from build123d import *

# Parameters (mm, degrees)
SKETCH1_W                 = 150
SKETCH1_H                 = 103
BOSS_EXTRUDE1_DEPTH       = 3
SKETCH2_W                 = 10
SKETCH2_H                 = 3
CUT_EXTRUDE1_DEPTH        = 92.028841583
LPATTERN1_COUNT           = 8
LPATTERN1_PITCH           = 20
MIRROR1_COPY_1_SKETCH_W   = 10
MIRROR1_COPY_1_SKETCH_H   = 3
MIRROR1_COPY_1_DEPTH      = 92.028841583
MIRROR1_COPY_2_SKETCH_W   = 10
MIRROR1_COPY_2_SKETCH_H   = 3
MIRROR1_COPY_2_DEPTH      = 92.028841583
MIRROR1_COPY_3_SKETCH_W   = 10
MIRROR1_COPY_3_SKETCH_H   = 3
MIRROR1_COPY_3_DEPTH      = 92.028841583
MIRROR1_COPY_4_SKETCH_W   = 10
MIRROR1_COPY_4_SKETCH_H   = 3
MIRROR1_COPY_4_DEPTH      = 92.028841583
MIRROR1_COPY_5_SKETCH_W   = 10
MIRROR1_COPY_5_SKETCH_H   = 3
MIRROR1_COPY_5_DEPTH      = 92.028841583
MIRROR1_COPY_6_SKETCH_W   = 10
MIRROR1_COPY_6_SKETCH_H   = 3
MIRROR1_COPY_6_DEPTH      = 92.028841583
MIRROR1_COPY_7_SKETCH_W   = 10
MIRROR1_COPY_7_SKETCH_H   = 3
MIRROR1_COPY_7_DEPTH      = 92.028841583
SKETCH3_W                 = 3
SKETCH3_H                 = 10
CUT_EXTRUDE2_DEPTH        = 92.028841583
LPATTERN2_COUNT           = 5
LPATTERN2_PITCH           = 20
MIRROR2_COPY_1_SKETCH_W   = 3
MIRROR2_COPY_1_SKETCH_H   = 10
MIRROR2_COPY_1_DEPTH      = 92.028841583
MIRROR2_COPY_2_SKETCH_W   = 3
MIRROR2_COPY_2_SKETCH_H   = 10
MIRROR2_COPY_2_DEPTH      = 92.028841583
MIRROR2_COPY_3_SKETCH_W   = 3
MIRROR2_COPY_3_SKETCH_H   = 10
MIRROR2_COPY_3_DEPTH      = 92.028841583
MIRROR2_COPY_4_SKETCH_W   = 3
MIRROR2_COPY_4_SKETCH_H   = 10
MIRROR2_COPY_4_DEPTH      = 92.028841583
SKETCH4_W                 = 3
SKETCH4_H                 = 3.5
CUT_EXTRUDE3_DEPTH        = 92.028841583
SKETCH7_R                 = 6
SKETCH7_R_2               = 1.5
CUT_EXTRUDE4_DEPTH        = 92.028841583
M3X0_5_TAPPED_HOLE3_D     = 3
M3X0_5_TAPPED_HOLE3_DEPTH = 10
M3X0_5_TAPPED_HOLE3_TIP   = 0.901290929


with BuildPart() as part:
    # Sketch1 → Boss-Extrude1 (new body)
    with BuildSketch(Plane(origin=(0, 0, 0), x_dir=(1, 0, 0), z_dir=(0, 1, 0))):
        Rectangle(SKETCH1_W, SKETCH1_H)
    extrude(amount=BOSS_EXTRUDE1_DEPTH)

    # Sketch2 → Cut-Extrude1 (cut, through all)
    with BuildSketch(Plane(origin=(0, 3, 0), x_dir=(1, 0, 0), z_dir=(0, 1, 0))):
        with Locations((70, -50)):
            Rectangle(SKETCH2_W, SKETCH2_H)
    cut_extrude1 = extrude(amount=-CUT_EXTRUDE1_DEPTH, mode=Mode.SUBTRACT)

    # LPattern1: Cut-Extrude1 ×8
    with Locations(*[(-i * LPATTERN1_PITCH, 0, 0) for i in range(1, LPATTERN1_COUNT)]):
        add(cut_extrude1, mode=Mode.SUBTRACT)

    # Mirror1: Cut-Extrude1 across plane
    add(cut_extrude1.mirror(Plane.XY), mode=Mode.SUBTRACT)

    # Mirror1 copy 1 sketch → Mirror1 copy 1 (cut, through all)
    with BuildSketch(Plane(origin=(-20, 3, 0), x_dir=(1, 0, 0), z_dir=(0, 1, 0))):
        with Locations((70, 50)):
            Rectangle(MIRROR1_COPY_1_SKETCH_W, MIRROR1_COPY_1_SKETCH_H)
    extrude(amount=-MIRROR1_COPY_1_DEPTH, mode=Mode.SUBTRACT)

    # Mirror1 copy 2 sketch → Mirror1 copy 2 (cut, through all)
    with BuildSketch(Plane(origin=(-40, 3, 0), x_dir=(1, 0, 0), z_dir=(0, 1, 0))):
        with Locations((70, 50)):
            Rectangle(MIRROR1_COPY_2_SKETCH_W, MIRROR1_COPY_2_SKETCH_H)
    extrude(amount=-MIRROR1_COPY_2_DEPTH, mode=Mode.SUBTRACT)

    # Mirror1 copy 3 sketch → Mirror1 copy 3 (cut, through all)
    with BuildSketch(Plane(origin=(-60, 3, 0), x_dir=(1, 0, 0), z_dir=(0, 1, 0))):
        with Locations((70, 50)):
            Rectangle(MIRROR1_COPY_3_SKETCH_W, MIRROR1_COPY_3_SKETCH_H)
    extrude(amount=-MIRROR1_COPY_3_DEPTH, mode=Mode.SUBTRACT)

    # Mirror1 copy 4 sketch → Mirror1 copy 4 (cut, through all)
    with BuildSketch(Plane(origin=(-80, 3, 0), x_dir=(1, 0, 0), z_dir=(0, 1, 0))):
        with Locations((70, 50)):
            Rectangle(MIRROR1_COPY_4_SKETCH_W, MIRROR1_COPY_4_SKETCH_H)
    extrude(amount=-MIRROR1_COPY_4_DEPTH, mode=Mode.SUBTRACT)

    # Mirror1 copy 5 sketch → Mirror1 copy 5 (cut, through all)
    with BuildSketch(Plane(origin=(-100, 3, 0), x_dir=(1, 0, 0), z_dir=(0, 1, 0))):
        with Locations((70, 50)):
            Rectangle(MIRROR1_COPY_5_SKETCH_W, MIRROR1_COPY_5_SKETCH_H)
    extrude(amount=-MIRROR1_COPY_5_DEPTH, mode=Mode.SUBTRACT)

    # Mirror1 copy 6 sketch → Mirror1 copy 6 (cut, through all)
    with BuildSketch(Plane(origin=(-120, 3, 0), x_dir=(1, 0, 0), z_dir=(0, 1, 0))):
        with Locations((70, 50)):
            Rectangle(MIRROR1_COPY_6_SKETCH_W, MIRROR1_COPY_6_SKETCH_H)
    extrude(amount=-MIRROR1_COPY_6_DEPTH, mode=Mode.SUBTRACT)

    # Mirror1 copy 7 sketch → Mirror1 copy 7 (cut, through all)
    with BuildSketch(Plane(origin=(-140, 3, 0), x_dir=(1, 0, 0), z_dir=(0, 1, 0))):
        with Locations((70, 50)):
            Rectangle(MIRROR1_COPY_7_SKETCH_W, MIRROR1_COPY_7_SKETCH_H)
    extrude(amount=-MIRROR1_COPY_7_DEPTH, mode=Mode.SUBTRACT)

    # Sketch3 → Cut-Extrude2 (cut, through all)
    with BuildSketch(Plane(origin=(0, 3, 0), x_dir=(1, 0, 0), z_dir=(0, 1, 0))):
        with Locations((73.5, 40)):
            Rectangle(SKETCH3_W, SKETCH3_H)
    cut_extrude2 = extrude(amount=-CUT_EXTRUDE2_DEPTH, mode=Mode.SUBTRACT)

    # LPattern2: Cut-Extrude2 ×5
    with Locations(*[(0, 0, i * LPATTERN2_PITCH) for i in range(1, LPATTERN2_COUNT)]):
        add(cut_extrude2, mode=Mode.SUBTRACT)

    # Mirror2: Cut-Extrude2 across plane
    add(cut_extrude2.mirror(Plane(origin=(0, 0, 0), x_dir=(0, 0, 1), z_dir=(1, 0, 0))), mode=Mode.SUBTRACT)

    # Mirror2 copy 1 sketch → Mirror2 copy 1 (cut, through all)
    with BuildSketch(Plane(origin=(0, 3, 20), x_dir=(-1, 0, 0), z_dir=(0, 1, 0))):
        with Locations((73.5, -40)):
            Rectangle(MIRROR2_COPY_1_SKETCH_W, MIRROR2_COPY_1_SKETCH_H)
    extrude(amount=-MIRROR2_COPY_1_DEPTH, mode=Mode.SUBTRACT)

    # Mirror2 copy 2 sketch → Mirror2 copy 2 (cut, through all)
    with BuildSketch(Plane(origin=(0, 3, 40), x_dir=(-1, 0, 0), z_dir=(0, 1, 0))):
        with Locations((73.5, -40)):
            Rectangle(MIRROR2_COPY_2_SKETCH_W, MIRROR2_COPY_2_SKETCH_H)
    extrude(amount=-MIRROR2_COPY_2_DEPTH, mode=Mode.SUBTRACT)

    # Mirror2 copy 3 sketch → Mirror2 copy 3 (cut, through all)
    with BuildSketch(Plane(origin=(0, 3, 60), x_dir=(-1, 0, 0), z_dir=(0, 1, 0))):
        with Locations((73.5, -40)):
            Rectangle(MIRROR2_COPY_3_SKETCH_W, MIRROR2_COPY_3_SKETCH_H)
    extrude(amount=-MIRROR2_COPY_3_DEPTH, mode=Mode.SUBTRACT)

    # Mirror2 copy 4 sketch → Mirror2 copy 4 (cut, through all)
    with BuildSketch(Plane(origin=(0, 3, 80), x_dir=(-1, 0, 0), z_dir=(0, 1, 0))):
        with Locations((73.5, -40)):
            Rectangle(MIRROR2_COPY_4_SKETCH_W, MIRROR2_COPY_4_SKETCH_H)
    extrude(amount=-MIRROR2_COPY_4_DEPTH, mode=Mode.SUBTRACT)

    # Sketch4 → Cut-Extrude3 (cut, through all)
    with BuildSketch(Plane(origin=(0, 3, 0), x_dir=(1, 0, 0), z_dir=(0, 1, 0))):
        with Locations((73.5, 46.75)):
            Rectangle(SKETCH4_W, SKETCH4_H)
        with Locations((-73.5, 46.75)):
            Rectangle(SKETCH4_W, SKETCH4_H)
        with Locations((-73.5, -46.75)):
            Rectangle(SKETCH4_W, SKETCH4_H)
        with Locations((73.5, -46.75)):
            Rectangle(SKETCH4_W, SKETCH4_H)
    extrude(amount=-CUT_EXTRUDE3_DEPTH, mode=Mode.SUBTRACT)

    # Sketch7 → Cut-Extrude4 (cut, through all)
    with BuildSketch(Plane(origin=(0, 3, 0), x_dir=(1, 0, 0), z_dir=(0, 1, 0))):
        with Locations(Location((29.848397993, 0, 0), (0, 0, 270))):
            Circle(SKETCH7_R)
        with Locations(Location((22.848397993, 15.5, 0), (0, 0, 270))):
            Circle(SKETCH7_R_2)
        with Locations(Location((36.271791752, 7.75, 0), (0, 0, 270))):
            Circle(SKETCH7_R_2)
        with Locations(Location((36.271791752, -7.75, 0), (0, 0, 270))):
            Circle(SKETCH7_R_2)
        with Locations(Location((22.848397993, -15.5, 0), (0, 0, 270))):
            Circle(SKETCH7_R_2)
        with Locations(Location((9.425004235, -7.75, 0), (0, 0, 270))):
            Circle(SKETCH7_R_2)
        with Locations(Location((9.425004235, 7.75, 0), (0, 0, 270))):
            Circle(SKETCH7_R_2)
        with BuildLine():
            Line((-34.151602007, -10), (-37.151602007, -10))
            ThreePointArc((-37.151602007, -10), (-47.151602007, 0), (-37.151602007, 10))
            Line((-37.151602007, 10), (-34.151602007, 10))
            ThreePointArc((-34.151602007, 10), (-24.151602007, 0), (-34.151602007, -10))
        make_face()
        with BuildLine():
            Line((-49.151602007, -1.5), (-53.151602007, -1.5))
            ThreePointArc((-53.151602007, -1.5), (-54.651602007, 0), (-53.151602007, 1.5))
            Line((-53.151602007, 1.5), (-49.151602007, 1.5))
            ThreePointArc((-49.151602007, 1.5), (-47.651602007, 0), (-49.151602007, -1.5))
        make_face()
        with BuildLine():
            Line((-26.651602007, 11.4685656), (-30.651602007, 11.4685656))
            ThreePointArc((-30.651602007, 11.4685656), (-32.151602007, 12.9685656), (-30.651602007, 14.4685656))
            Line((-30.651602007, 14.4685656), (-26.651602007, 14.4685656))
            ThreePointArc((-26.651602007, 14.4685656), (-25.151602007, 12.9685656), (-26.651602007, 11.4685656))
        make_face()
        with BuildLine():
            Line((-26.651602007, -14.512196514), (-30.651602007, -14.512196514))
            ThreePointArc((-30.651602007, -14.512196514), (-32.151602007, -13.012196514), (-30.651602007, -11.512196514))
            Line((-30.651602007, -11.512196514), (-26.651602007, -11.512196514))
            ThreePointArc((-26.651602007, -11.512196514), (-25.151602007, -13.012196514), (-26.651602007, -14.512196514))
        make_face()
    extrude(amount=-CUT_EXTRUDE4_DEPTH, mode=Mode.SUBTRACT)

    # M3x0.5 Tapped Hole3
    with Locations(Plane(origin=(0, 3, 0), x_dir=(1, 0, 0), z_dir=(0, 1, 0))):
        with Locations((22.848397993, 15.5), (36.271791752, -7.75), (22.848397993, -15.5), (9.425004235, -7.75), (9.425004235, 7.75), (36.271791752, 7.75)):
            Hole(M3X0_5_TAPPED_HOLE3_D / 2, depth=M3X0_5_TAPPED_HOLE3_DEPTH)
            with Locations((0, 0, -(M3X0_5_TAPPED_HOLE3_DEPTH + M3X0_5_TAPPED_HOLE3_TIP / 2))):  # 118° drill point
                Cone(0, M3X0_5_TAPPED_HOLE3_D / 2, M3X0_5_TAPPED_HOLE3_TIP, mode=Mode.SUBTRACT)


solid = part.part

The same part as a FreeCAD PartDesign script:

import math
import FreeCAD as App
import Part
import Sketcher
from FreeCAD import Vector
Q = App.Units.Quantity


def add_polygon(sketch, points):
    """Adds a closed chain of lines whose ends are joined by coincident constraints."""
    first, n = sketch.GeometryCount, len(points)
    for a, b in zip(points, points[1:] + points[:1]):
        sketch.addGeometry(Part.LineSegment(App.Vector(*a, 0), App.Vector(*b, 0)), False)
    for i in range(n):
        sketch.addConstraint(Sketcher.Constraint("Coincident", first + i, 2, first + (i + 1) % n, 1))

doc = App.newDocument("Part")
body = doc.addObject("PartDesign::Body", "Body")

# Sketch on XZ plane
sketch1 = body.newObject("Sketcher::SketchObject", "Sketch")
sketch1.AttachmentSupport = (doc.getObject("XZ_Plane"), [""])
sketch1.MapMode = "FlatFace"
add_polygon(sketch1, [(-75, -51.5), (-75, 51.5), (75, 51.5), (75, -51.5)])  # lines 0-3
sketch1.addConstraint(Sketcher.Constraint("Vertical", 0))
sketch1.addConstraint(Sketcher.Constraint("Horizontal", 1))
sketch1.addConstraint(Sketcher.Constraint("Vertical", 2))
sketch1.addConstraint(Sketcher.Constraint("Horizontal", 3))
sketch1.addConstraint(Sketcher.Constraint("Symmetric", 0, 2, 2, 2, -1, 1))
sketch1.addConstraint(Sketcher.Constraint("DistanceX", 1, 1, 1, 2, Q("150 mm")))
sketch1.addConstraint(Sketcher.Constraint("DistanceY", 0, 1, 0, 2, Q("103 mm")))
pad1 = body.newObject("PartDesign::Pad", "Pad")
pad1.Profile = sketch1
pad1.Length = 3
pad1.Reversed = True

# Sketch on XZ plane
sketch2 = body.newObject("Sketcher::SketchObject", "Sketch001")
sketch2.AttachmentSupport = (doc.getObject("XZ_Plane"), [""])
sketch2.MapMode = "FlatFace"
sketch2.AttachmentOffset = App.Placement(Vector(0, 0, -3), App.Rotation())
add_polygon(sketch2, [(65, 48.5), (65, 51.5), (75, 51.5), (75, 48.5)])  # lines 0-3
sketch2.addConstraint(Sketcher.Constraint("Vertical", 0))
sketch2.addConstraint(Sketcher.Constraint("Horizontal", 1))
sketch2.addConstraint(Sketcher.Constraint("Vertical", 2))
sketch2.addConstraint(Sketcher.Constraint("Horizontal", 3))
sketch2.addConstraint(Sketcher.Constraint("DistanceX", 1, 1, 1, 2, Q("10 mm")))
sketch2.addConstraint(Sketcher.Constraint("DistanceY", 0, 1, 0, 2, Q("3 mm")))
sketch2.addConstraint(Sketcher.Constraint("DistanceX", -1, 1, 0, 2, Q("65 mm")))
sketch2.addConstraint(Sketcher.Constraint("DistanceY", -1, 1, 0, 2, Q("51.5 mm")))
pocket1 = body.newObject("PartDesign::Pocket", "Pocket")
pocket1.Profile = sketch2
pocket1.Type = "ThroughAll"
pocket1.Reversed = True
doc.recompute()

linearpattern = body.newObject("PartDesign::LinearPattern", "LinearPattern")
linearpattern.Originals = [pocket1]
linearpattern.Direction = (doc.getObject("X_Axis"), [""])
linearpattern.Mode = "offset"
linearpattern.Offset = 20
linearpattern.Occurrences = 8
linearpattern.Reversed = True
body.Tip = linearpattern
doc.recompute()

mirrored = body.newObject("PartDesign::Mirrored", "Mirrored")
mirrored.Originals = [pocket1]
mirrored.MirrorPlane = (doc.getObject("XY_Plane"), [""])
body.Tip = mirrored

# Sketch on XZ plane
sketch3 = body.newObject("Sketcher::SketchObject", "Sketch002")
sketch3.AttachmentSupport = (doc.getObject("XZ_Plane"), [""])
sketch3.MapMode = "FlatFace"
sketch3.AttachmentOffset = App.Placement(Vector(0, 0, -3), App.Rotation())
add_polygon(sketch3, [(45, -51.5), (45, -48.5), (55, -48.5), (55, -51.5)])  # lines 0-3
sketch3.addConstraint(Sketcher.Constraint("Vertical", 0))
sketch3.addConstraint(Sketcher.Constraint("Horizontal", 1))
sketch3.addConstraint(Sketcher.Constraint("Vertical", 2))
sketch3.addConstraint(Sketcher.Constraint("Horizontal", 3))
sketch3.addConstraint(Sketcher.Constraint("DistanceX", 1, 1, 1, 2, Q("10 mm")))
sketch3.addConstraint(Sketcher.Constraint("DistanceY", 0, 1, 0, 2, Q("3 mm")))
sketch3.addConstraint(Sketcher.Constraint("DistanceX", -1, 1, 0, 2, Q("45 mm")))
sketch3.addConstraint(Sketcher.Constraint("DistanceY", 0, 2, -1, 1, Q("48.5 mm")))
pocket2 = body.newObject("PartDesign::Pocket", "Pocket001")
pocket2.Profile = sketch3
pocket2.Type = "ThroughAll"
pocket2.Reversed = True

# Sketch on XZ plane
sketch4 = body.newObject("Sketcher::SketchObject", "Sketch003")
sketch4.AttachmentSupport = (doc.getObject("XZ_Plane"), [""])
sketch4.MapMode = "FlatFace"
sketch4.AttachmentOffset = App.Placement(Vector(0, 0, -3), App.Rotation())
add_polygon(sketch4, [(25, -51.5), (25, -48.5), (35, -48.5), (35, -51.5)])  # lines 0-3
sketch4.addConstraint(Sketcher.Constraint("Vertical", 0))
sketch4.addConstraint(Sketcher.Constraint("Horizontal", 1))
sketch4.addConstraint(Sketcher.Constraint("Vertical", 2))
sketch4.addConstraint(Sketcher.Constraint("Horizontal", 3))
sketch4.addConstraint(Sketcher.Constraint("DistanceX", 1, 1, 1, 2, Q("10 mm")))
sketch4.addConstraint(Sketcher.Constraint("DistanceY", 0, 1, 0, 2, Q("3 mm")))
sketch4.addConstraint(Sketcher.Constraint("DistanceX", -1, 1, 0, 2, Q("25 mm")))
sketch4.addConstraint(Sketcher.Constraint("DistanceY", 0, 2, -1, 1, Q("48.5 mm")))
pocket3 = body.newObject("PartDesign::Pocket", "Pocket002")
pocket3.Profile = sketch4
pocket3.Type = "ThroughAll"
pocket3.Reversed = True

# Sketch on XZ plane
sketch5 = body.newObject("Sketcher::SketchObject", "Sketch004")
sketch5.AttachmentSupport = (doc.getObject("XZ_Plane"), [""])
sketch5.MapMode = "FlatFace"
sketch5.AttachmentOffset = App.Placement(Vector(0, 0, -3), App.Rotation())
add_polygon(sketch5, [(5, -51.5), (5, -48.5), (15, -48.5), (15, -51.5)])  # lines 0-3
sketch5.addConstraint(Sketcher.Constraint("Vertical", 0))
sketch5.addConstraint(Sketcher.Constraint("Horizontal", 1))
sketch5.addConstraint(Sketcher.Constraint("Vertical", 2))
sketch5.addConstraint(Sketcher.Constraint("Horizontal", 3))
sketch5.addConstraint(Sketcher.Constraint("DistanceX", 1, 1, 1, 2, Q("10 mm")))
sketch5.addConstraint(Sketcher.Constraint("DistanceY", 0, 1, 0, 2, Q("3 mm")))
sketch5.addConstraint(Sketcher.Constraint("DistanceX", -1, 1, 0, 2, Q("5 mm")))
sketch5.addConstraint(Sketcher.Constraint("DistanceY", 0, 2, -1, 1, Q("48.5 mm")))
pocket4 = body.newObject("PartDesign::Pocket", "Pocket003")
pocket4.Profile = sketch5
pocket4.Type = "ThroughAll"
pocket4.Reversed = True

# Sketch on XZ plane
sketch6 = body.newObject("Sketcher::SketchObject", "Sketch005")
sketch6.AttachmentSupport = (doc.getObject("XZ_Plane"), [""])
sketch6.MapMode = "FlatFace"
sketch6.AttachmentOffset = App.Placement(Vector(0, 0, -3), App.Rotation())
add_polygon(sketch6, [(-15, -51.5), (-15, -48.5), (-5, -48.5), (-5, -51.5)])  # lines 0-3
sketch6.addConstraint(Sketcher.Constraint("Vertical", 0))
sketch6.addConstraint(Sketcher.Constraint("Horizontal", 1))
sketch6.addConstraint(Sketcher.Constraint("Vertical", 2))
sketch6.addConstraint(Sketcher.Constraint("Horizontal", 3))
sketch6.addConstraint(Sketcher.Constraint("DistanceX", 1, 1, 1, 2, Q("10 mm")))
sketch6.addConstraint(Sketcher.Constraint("DistanceY", 0, 1, 0, 2, Q("3 mm")))
sketch6.addConstraint(Sketcher.Constraint("DistanceX", 0, 2, -1, 1, Q("15 mm")))
sketch6.addConstraint(Sketcher.Constraint("DistanceY", 0, 2, -1, 1, Q("48.5 mm")))
pocket5 = body.newObject("PartDesign::Pocket", "Pocket004")
pocket5.Profile = sketch6
pocket5.Type = "ThroughAll"
pocket5.Reversed = True

# Sketch on XZ plane
sketch7 = body.newObject("Sketcher::SketchObject", "Sketch006")
sketch7.AttachmentSupport = (doc.getObject("XZ_Plane"), [""])
sketch7.MapMode = "FlatFace"
sketch7.AttachmentOffset = App.Placement(Vector(0, 0, -3), App.Rotation())
add_polygon(sketch7, [(-35, -51.5), (-35, -48.5), (-25, -48.5), (-25, -51.5)])  # lines 0-3
sketch7.addConstraint(Sketcher.Constraint("Vertical", 0))
sketch7.addConstraint(Sketcher.Constraint("Horizontal", 1))
sketch7.addConstraint(Sketcher.Constraint("Vertical", 2))
sketch7.addConstraint(Sketcher.Constraint("Horizontal", 3))
sketch7.addConstraint(Sketcher.Constraint("DistanceX", 1, 1, 1, 2, Q("10 mm")))
sketch7.addConstraint(Sketcher.Constraint("DistanceY", 0, 1, 0, 2, Q("3 mm")))
sketch7.addConstraint(Sketcher.Constraint("DistanceX", 0, 2, -1, 1, Q("35 mm")))
sketch7.addConstraint(Sketcher.Constraint("DistanceY", 0, 2, -1, 1, Q("48.5 mm")))
pocket6 = body.newObject("PartDesign::Pocket", "Pocket005")
pocket6.Profile = sketch7
pocket6.Type = "ThroughAll"
pocket6.Reversed = True

# Sketch on XZ plane
sketch8 = body.newObject("Sketcher::SketchObject", "Sketch007")
sketch8.AttachmentSupport = (doc.getObject("XZ_Plane"), [""])
sketch8.MapMode = "FlatFace"
sketch8.AttachmentOffset = App.Placement(Vector(0, 0, -3), App.Rotation())
add_polygon(sketch8, [(-55, -51.5), (-55, -48.5), (-45, -48.5), (-45, -51.5)])  # lines 0-3
sketch8.addConstraint(Sketcher.Constraint("Vertical", 0))
sketch8.addConstraint(Sketcher.Constraint("Horizontal", 1))
sketch8.addConstraint(Sketcher.Constraint("Vertical", 2))
sketch8.addConstraint(Sketcher.Constraint("Horizontal", 3))
sketch8.addConstraint(Sketcher.Constraint("DistanceX", 1, 1, 1, 2, Q("10 mm")))
sketch8.addConstraint(Sketcher.Constraint("DistanceY", 0, 1, 0, 2, Q("3 mm")))
sketch8.addConstraint(Sketcher.Constraint("DistanceX", 0, 2, -1, 1, Q("55 mm")))
sketch8.addConstraint(Sketcher.Constraint("DistanceY", 0, 2, -1, 1, Q("48.5 mm")))
pocket7 = body.newObject("PartDesign::Pocket", "Pocket006")
pocket7.Profile = sketch8
pocket7.Type = "ThroughAll"
pocket7.Reversed = True

# Sketch on XZ plane
sketch9 = body.newObject("Sketcher::SketchObject", "Sketch008")
sketch9.AttachmentSupport = (doc.getObject("XZ_Plane"), [""])
sketch9.MapMode = "FlatFace"
sketch9.AttachmentOffset = App.Placement(Vector(0, 0, -3), App.Rotation())
add_polygon(sketch9, [(-75, -51.5), (-75, -48.5), (-65, -48.5), (-65, -51.5)])  # lines 0-3
sketch9.addConstraint(Sketcher.Constraint("Vertical", 0))
sketch9.addConstraint(Sketcher.Constraint("Horizontal", 1))
sketch9.addConstraint(Sketcher.Constraint("Vertical", 2))
sketch9.addConstraint(Sketcher.Constraint("Horizontal", 3))
sketch9.addConstraint(Sketcher.Constraint("DistanceX", 1, 1, 1, 2, Q("10 mm")))
sketch9.addConstraint(Sketcher.Constraint("DistanceY", 0, 1, 0, 2, Q("3 mm")))
sketch9.addConstraint(Sketcher.Constraint("DistanceX", 0, 2, -1, 1, Q("75 mm")))
sketch9.addConstraint(Sketcher.Constraint("DistanceY", 0, 2, -1, 1, Q("48.5 mm")))
pocket8 = body.newObject("PartDesign::Pocket", "Pocket007")
pocket8.Profile = sketch9
pocket8.Type = "ThroughAll"
pocket8.Reversed = True

# Sketch on XZ plane
sketch10 = body.newObject("Sketcher::SketchObject", "Sketch009")
sketch10.AttachmentSupport = (doc.getObject("XZ_Plane"), [""])
sketch10.MapMode = "FlatFace"
sketch10.AttachmentOffset = App.Placement(Vector(0, 0, -3), App.Rotation())
add_polygon(sketch10, [(72, -45), (72, -35), (75, -35), (75, -45)])  # lines 0-3
sketch10.addConstraint(Sketcher.Constraint("Vertical", 0))
sketch10.addConstraint(Sketcher.Constraint("Horizontal", 1))
sketch10.addConstraint(Sketcher.Constraint("Vertical", 2))
sketch10.addConstraint(Sketcher.Constraint("Horizontal", 3))
sketch10.addConstraint(Sketcher.Constraint("DistanceX", 1, 1, 1, 2, Q("3 mm")))
sketch10.addConstraint(Sketcher.Constraint("DistanceY", 0, 1, 0, 2, Q("10 mm")))
sketch10.addConstraint(Sketcher.Constraint("DistanceX", -1, 1, 0, 2, Q("72 mm")))
sketch10.addConstraint(Sketcher.Constraint("DistanceY", 0, 2, -1, 1, Q("35 mm")))
pocket9 = body.newObject("PartDesign::Pocket", "Pocket008")
pocket9.Profile = sketch10
pocket9.Type = "ThroughAll"
pocket9.Reversed = True
doc.recompute()

linearpattern2 = body.newObject("PartDesign::LinearPattern", "LinearPattern001")
linearpattern2.Originals = [pocket9]
linearpattern2.Direction = (doc.getObject("Z_Axis"), [""])
linearpattern2.Mode = "offset"
linearpattern2.Offset = 20
linearpattern2.Occurrences = 5
body.Tip = linearpattern2
doc.recompute()

mirrored2 = body.newObject("PartDesign::Mirrored", "Mirrored001")
mirrored2.Originals = [pocket9]
mirrored2.MirrorPlane = (doc.getObject("YZ_Plane"), [""])
body.Tip = mirrored2

# Sketch on XZ plane
sketch11 = body.newObject("Sketcher::SketchObject", "Sketch010")
sketch11.AttachmentSupport = (doc.getObject("XZ_Plane"), [""])
sketch11.MapMode = "FlatFace"
sketch11.AttachmentOffset = App.Placement(Vector(0, 0, -3), App.Rotation())
add_polygon(sketch11, [(-72, -15), (-72, -25), (-75, -25), (-75, -15)])  # lines 0-3
sketch11.addConstraint(Sketcher.Constraint("Vertical", 0))
sketch11.addConstraint(Sketcher.Constraint("Horizontal", 1))
sketch11.addConstraint(Sketcher.Constraint("Vertical", 2))
sketch11.addConstraint(Sketcher.Constraint("Horizontal", 3))
sketch11.addConstraint(Sketcher.Constraint("DistanceX", 1, 2, 1, 1, Q("3 mm")))
sketch11.addConstraint(Sketcher.Constraint("DistanceY", 0, 2, 0, 1, Q("10 mm")))
sketch11.addConstraint(Sketcher.Constraint("DistanceX", 0, 2, -1, 1, Q("72 mm")))
sketch11.addConstraint(Sketcher.Constraint("DistanceY", 0, 2, -1, 1, Q("25 mm")))
pocket10 = body.newObject("PartDesign::Pocket", "Pocket009")
pocket10.Profile = sketch11
pocket10.Type = "ThroughAll"
pocket10.Reversed = True

# Sketch on XZ plane
sketch12 = body.newObject("Sketcher::SketchObject", "Sketch011")
sketch12.AttachmentSupport = (doc.getObject("XZ_Plane"), [""])
sketch12.MapMode = "FlatFace"
sketch12.AttachmentOffset = App.Placement(Vector(0, 0, -3), App.Rotation())
add_polygon(sketch12, [(-72, 5), (-72, -5), (-75, -5), (-75, 5)])  # lines 0-3
sketch12.addConstraint(Sketcher.Constraint("Vertical", 0))
sketch12.addConstraint(Sketcher.Constraint("Horizontal", 1))
sketch12.addConstraint(Sketcher.Constraint("Vertical", 2))
sketch12.addConstraint(Sketcher.Constraint("Horizontal", 3))
sketch12.addConstraint(Sketcher.Constraint("DistanceX", 1, 2, 1, 1, Q("3 mm")))
sketch12.addConstraint(Sketcher.Constraint("DistanceY", 0, 2, 0, 1, Q("10 mm")))
sketch12.addConstraint(Sketcher.Constraint("DistanceX", 0, 2, -1, 1, Q("72 mm")))
sketch12.addConstraint(Sketcher.Constraint("DistanceY", 0, 2, -1, 1, Q("5 mm")))
pocket11 = body.newObject("PartDesign::Pocket", "Pocket010")
pocket11.Profile = sketch12
pocket11.Type = "ThroughAll"
pocket11.Reversed = True

# Sketch on XZ plane
sketch13 = body.newObject("Sketcher::SketchObject", "Sketch012")
sketch13.AttachmentSupport = (doc.getObject("XZ_Plane"), [""])
sketch13.MapMode = "FlatFace"
sketch13.AttachmentOffset = App.Placement(Vector(0, 0, -3), App.Rotation())
add_polygon(sketch13, [(-72, 25), (-72, 15), (-75, 15), (-75, 25)])  # lines 0-3
sketch13.addConstraint(Sketcher.Constraint("Vertical", 0))
sketch13.addConstraint(Sketcher.Constraint("Horizontal", 1))
sketch13.addConstraint(Sketcher.Constraint("Vertical", 2))
sketch13.addConstraint(Sketcher.Constraint("Horizontal", 3))
sketch13.addConstraint(Sketcher.Constraint("DistanceX", 1, 2, 1, 1, Q("3 mm")))
sketch13.addConstraint(Sketcher.Constraint("DistanceY", 0, 2, 0, 1, Q("10 mm")))
sketch13.addConstraint(Sketcher.Constraint("DistanceX", 0, 2, -1, 1, Q("72 mm")))
sketch13.addConstraint(Sketcher.Constraint("DistanceY", -1, 1, 0, 2, Q("15 mm")))
pocket12 = body.newObject("PartDesign::Pocket", "Pocket011")
pocket12.Profile = sketch13
pocket12.Type = "ThroughAll"
pocket12.Reversed = True

# Sketch on XZ plane
sketch14 = body.newObject("Sketcher::SketchObject", "Sketch013")
sketch14.AttachmentSupport = (doc.getObject("XZ_Plane"), [""])
sketch14.MapMode = "FlatFace"
sketch14.AttachmentOffset = App.Placement(Vector(0, 0, -3), App.Rotation())
add_polygon(sketch14, [(-72, 45), (-72, 35), (-75, 35), (-75, 45)])  # lines 0-3
sketch14.addConstraint(Sketcher.Constraint("Vertical", 0))
sketch14.addConstraint(Sketcher.Constraint("Horizontal", 1))
sketch14.addConstraint(Sketcher.Constraint("Vertical", 2))
sketch14.addConstraint(Sketcher.Constraint("Horizontal", 3))
sketch14.addConstraint(Sketcher.Constraint("DistanceX", 1, 2, 1, 1, Q("3 mm")))
sketch14.addConstraint(Sketcher.Constraint("DistanceY", 0, 2, 0, 1, Q("10 mm")))
sketch14.addConstraint(Sketcher.Constraint("DistanceX", 0, 2, -1, 1, Q("72 mm")))
sketch14.addConstraint(Sketcher.Constraint("DistanceY", -1, 1, 0, 2, Q("35 mm")))
pocket13 = body.newObject("PartDesign::Pocket", "Pocket012")
pocket13.Profile = sketch14
pocket13.Type = "ThroughAll"
pocket13.Reversed = True

# Sketch on XZ plane
sketch15 = body.newObject("Sketcher::SketchObject", "Sketch014")
sketch15.AttachmentSupport = (doc.getObject("XZ_Plane"), [""])
sketch15.MapMode = "FlatFace"
sketch15.AttachmentOffset = App.Placement(Vector(0, 0, -3), App.Rotation())
add_polygon(sketch15, [(72, -48.5), (72, -45), (75, -45), (75, -48.5)])  # lines 0-3
add_polygon(sketch15, [(-75, -48.5), (-75, -45), (-72, -45), (-72, -48.5)])  # lines 4-7
add_polygon(sketch15, [(-75, 45), (-75, 48.5), (-72, 48.5), (-72, 45)])  # lines 8-11
add_polygon(sketch15, [(72, 45), (72, 48.5), (75, 48.5), (75, 45)])  # lines 12-15
sketch15.addConstraint(Sketcher.Constraint("Vertical", 0))
sketch15.addConstraint(Sketcher.Constraint("Horizontal", 1))
sketch15.addConstraint(Sketcher.Constraint("Vertical", 2))
sketch15.addConstraint(Sketcher.Constraint("Horizontal", 3))
sketch15.addConstraint(Sketcher.Constraint("Vertical", 4))
sketch15.addConstraint(Sketcher.Constraint("Horizontal", 5))
sketch15.addConstraint(Sketcher.Constraint("Vertical", 6))
sketch15.addConstraint(Sketcher.Constraint("Horizontal", 7))
sketch15.addConstraint(Sketcher.Constraint("Vertical", 8))
sketch15.addConstraint(Sketcher.Constraint("Horizontal", 9))
sketch15.addConstraint(Sketcher.Constraint("Vertical", 10))
sketch15.addConstraint(Sketcher.Constraint("Horizontal", 11))
sketch15.addConstraint(Sketcher.Constraint("Vertical", 12))
sketch15.addConstraint(Sketcher.Constraint("Horizontal", 13))
sketch15.addConstraint(Sketcher.Constraint("Vertical", 14))
sketch15.addConstraint(Sketcher.Constraint("Horizontal", 15))
sketch15.addConstraint(Sketcher.Constraint("Symmetric", 2, 2, 8, 2, -1, 1))
sketch15.addConstraint(Sketcher.Constraint("Symmetric", 0, 2, 10, 2, -1, 1))
sketch15.addConstraint(Sketcher.Constraint("Symmetric", 6, 2, 12, 2, -1, 1))
sketch15.addConstraint(Sketcher.Constraint("Symmetric", 4, 2, 14, 2, -1, 1))
sketch15.addConstraint(Sketcher.Constraint("Symmetric", 1, 2, 4, 2, -2))
sketch15.addConstraint(Sketcher.Constraint("Symmetric", 3, 2, 6, 2, -2))
sketch15.addConstraint(Sketcher.Constraint("DistanceX", 1, 1, 1, 2, Q("3 mm")))
sketch15.addConstraint(Sketcher.Constraint("DistanceY", 0, 1, 0, 2, Q("3.5 mm")))
sketch15.addConstraint(Sketcher.Constraint("DistanceX", -1, 1, 0, 2, Q("72 mm")))
sketch15.addConstraint(Sketcher.Constraint("DistanceY", 0, 2, -1, 1, Q("45 mm")))
pocket14 = body.newObject("PartDesign::Pocket", "Pocket013")
pocket14.Profile = sketch15
pocket14.Type = "ThroughAll"
pocket14.Reversed = True

# Sketch on XZ plane
sketch16 = body.newObject("Sketcher::SketchObject", "Sketch015")
sketch16.AttachmentSupport = (doc.getObject("XZ_Plane"), [""])
sketch16.MapMode = "FlatFace"
sketch16.AttachmentOffset = App.Placement(Vector(0, 0, -3), App.Rotation())
sketch16.addGeometry(Part.Circle(Vector(29.848398, 0, 0), Vector(0, 0, 1), 6), False)
sketch16.addGeometry(Part.Circle(Vector(22.848398, -15.5, 0), Vector(0, 0, 1), 1.5), False)
sketch16.addGeometry(Part.Circle(Vector(36.271792, -7.75, 0), Vector(0, 0, 1), 1.5), False)
sketch16.addGeometry(Part.Circle(Vector(36.271792, 7.75, 0), Vector(0, 0, 1), 1.5), False)
sketch16.addGeometry(Part.Circle(Vector(22.848398, 15.5, 0), Vector(0, 0, 1), 1.5), False)
sketch16.addGeometry(Part.Circle(Vector(9.425004, 7.75, 0), Vector(0, 0, 1), 1.5), False)
sketch16.addGeometry(Part.Circle(Vector(9.425004, -7.75, 0), Vector(0, 0, 1), 1.5), False)
sketch16.addGeometry(Part.LineSegment(Vector(-37.151602, 10, 0), Vector(-34.151602, 10, 0)), False)
sketch16.addGeometry(Part.ArcOfCircle(Part.Circle(Vector(-34.151602, 0, 0), Vector(0, 0, 1), 10), math.radians(-90), math.radians(90)), False)
sketch16.addGeometry(Part.LineSegment(Vector(-34.151602, -10, 0), Vector(-37.151602, -10, 0)), False)
sketch16.addGeometry(Part.ArcOfCircle(Part.Circle(Vector(-37.151602, 0, 0), Vector(0, 0, 1), 10), math.radians(90), math.radians(270)), False)
sketch16.addGeometry(Part.LineSegment(Vector(-53.151602, 1.5, 0), Vector(-49.151602, 1.5, 0)), False)
sketch16.addGeometry(Part.ArcOfCircle(Part.Circle(Vector(-49.151602, 0, 0), Vector(0, 0, 1), 1.5), math.radians(-90), math.radians(90)), False)
sketch16.addGeometry(Part.LineSegment(Vector(-49.151602, -1.5, 0), Vector(-53.151602, -1.5, 0)), False)
sketch16.addGeometry(Part.ArcOfCircle(Part.Circle(Vector(-53.151602, 0, 0), Vector(0, 0, 1), 1.5), math.radians(90), math.radians(270)), False)
sketch16.addGeometry(Part.LineSegment(Vector(-30.651602, -11.468566, 0), Vector(-26.651602, -11.468566, 0)), False)
sketch16.addGeometry(Part.ArcOfCircle(Part.Circle(Vector(-26.651602, -12.968566, 0), Vector(0, 0, 1), 1.5), math.radians(-90), math.radians(90)), False)
sketch16.addGeometry(Part.LineSegment(Vector(-26.651602, -14.468566, 0), Vector(-30.651602, -14.468566, 0)), False)
sketch16.addGeometry(Part.ArcOfCircle(Part.Circle(Vector(-30.651602, -12.968566, 0), Vector(0, 0, 1), 1.5), math.radians(90), math.radians(270)), False)
sketch16.addGeometry(Part.LineSegment(Vector(-30.651602, 14.512197, 0), Vector(-26.651602, 14.512197, 0)), False)
sketch16.addGeometry(Part.ArcOfCircle(Part.Circle(Vector(-26.651602, 13.012197, 0), Vector(0, 0, 1), 1.5), math.radians(-90), math.radians(90)), False)
sketch16.addGeometry(Part.LineSegment(Vector(-26.651602, 11.512197, 0), Vector(-30.651602, 11.512197, 0)), False)
sketch16.addGeometry(Part.ArcOfCircle(Part.Circle(Vector(-30.651602, 13.012197, 0), Vector(0, 0, 1), 1.5), math.radians(90), math.radians(270)), False)
sketch16.addConstraint(Sketcher.Constraint("Tangent", 7, 2, 8, 2))
sketch16.addConstraint(Sketcher.Constraint("Tangent", 8, 1, 9, 1))
sketch16.addConstraint(Sketcher.Constraint("Tangent", 9, 2, 10, 2))
sketch16.addConstraint(Sketcher.Constraint("Tangent", 10, 1, 7, 1))
sketch16.addConstraint(Sketcher.Constraint("Tangent", 11, 2, 12, 2))
sketch16.addConstraint(Sketcher.Constraint("Tangent", 12, 1, 13, 1))
sketch16.addConstraint(Sketcher.Constraint("Tangent", 13, 2, 14, 2))
sketch16.addConstraint(Sketcher.Constraint("Tangent", 14, 1, 11, 1))
sketch16.addConstraint(Sketcher.Constraint("Tangent", 15, 2, 16, 2))
sketch16.addConstraint(Sketcher.Constraint("Tangent", 16, 1, 17, 1))
sketch16.addConstraint(Sketcher.Constraint("Tangent", 17, 2, 18, 2))
sketch16.addConstraint(Sketcher.Constraint("Tangent", 18, 1, 15, 1))
sketch16.addConstraint(Sketcher.Constraint("Tangent", 19, 2, 20, 2))
sketch16.addConstraint(Sketcher.Constraint("Tangent", 20, 1, 21, 1))
sketch16.addConstraint(Sketcher.Constraint("Tangent", 21, 2, 22, 2))
sketch16.addConstraint(Sketcher.Constraint("Tangent", 22, 1, 19, 1))
sketch16.addConstraint(Sketcher.Constraint("Horizontal", 7))
sketch16.addConstraint(Sketcher.Constraint("Horizontal", 9))
sketch16.addConstraint(Sketcher.Constraint("Horizontal", 11))
sketch16.addConstraint(Sketcher.Constraint("Horizontal", 13))
sketch16.addConstraint(Sketcher.Constraint("Horizontal", 15))
sketch16.addConstraint(Sketcher.Constraint("Horizontal", 17))
sketch16.addConstraint(Sketcher.Constraint("Horizontal", 19))
sketch16.addConstraint(Sketcher.Constraint("Horizontal", 21))
sketch16.addConstraint(Sketcher.Constraint("Equal", 1, 2))
sketch16.addConstraint(Sketcher.Constraint("Equal", 2, 3))
sketch16.addConstraint(Sketcher.Constraint("Equal", 3, 4))
sketch16.addConstraint(Sketcher.Constraint("Equal", 4, 5))
sketch16.addConstraint(Sketcher.Constraint("Equal", 5, 6))
sketch16.addConstraint(Sketcher.Constraint("Equal", 6, 12))
sketch16.addConstraint(Sketcher.Constraint("Equal", 14, 16))
sketch16.addConstraint(Sketcher.Constraint("Equal", 18, 20))
sketch16.addConstraint(Sketcher.Constraint("Symmetric", 2, 3, 3, 3, -1))
sketch16.addConstraint(Sketcher.Constraint("Symmetric", 1, 3, 4, 3, -1))
sketch16.addConstraint(Sketcher.Constraint("Symmetric", 5, 3, 6, 3, -1))
sketch16.addConstraint(Sketcher.Constraint("PointOnObject", 0, 3, -1))
sketch16.addConstraint(Sketcher.Constraint("PointOnObject", 8, 3, -1))
sketch16.addConstraint(Sketcher.Constraint("PointOnObject", 12, 3, -1))
sketch16.addConstraint(Sketcher.Constraint("Horizontal", 3, 3, 5, 3))
sketch16.addConstraint(Sketcher.Constraint("Vertical", 16, 3, 20, 3))
sketch16.addConstraint(Sketcher.Constraint("Vertical", 18, 3, 22, 3))
sketch16.addConstraint(Sketcher.Constraint("Equal", 13, 15))
sketch16.addConstraint(Sketcher.Constraint("Diameter", 0, Q("12 mm")))
sketch16.addConstraint(Sketcher.Constraint("Diameter", 1, Q("3 mm")))
sketch16.addConstraint(Sketcher.Constraint("Radius", 8, Q("10 mm")))
sketch16.addConstraint(Sketcher.Constraint("DistanceX", 7, 1, 7, 2, Q("3 mm")))
sketch16.addConstraint(Sketcher.Constraint("DistanceX", 11, 1, 11, 2, Q("4 mm")))
sketch16.addConstraint(Sketcher.Constraint("DistanceX", 1, 3, 0, 3, Q("7 mm")))
sketch16.addConstraint(Sketcher.Constraint("DistanceY", 1, 3, 4, 3, Q("31 mm")))
sketch16.addConstraint(Sketcher.Constraint("DistanceX", 8, 3, 1, 3, Q("57 mm")))
sketch16.addConstraint(Sketcher.Constraint("DistanceX", 12, 3, 10, 3, Q("12 mm")))
sketch16.addConstraint(Sketcher.Constraint("DistanceY", 2, 3, 3, 3, Q("15.5 mm")))
sketch16.addConstraint(Sketcher.Constraint("DistanceX", 8, 3, 16, 3, Q("7.5 mm")))
sketch16.addConstraint(Sketcher.Constraint("DistanceX", -1, 1, 2, 3, Q("36.271792 mm")))
sketch16.addConstraint(Sketcher.Constraint("DistanceX", -1, 1, 0, 3, Q("29.848398 mm")))
sketch16.addConstraint(Sketcher.Constraint("DistanceX", -1, 1, 5, 3, Q("9.425004 mm")))
sketch16.addConstraint(Sketcher.Constraint("DistanceY", 16, 3, -1, 1, Q("12.968566 mm")))
sketch16.addConstraint(Sketcher.Constraint("DistanceY", -1, 1, 20, 3, Q("13.012197 mm")))
pocket15 = body.newObject("PartDesign::Pocket", "Pocket014")
pocket15.Profile = sketch16
pocket15.Type = "ThroughAll"
pocket15.Reversed = True

# Sketch on XZ plane
sketch17 = body.newObject("Sketcher::SketchObject", "Sketch016")
sketch17.AttachmentSupport = (doc.getObject("XZ_Plane"), [""])
sketch17.MapMode = "FlatFace"
sketch17.AttachmentOffset = App.Placement(Vector(0, 0, -3), App.Rotation())
sketch17.addGeometry(Part.Circle(Vector(22.848398, -15.5, 0), Vector(0, 0, 1), 1.5), False)
sketch17.addGeometry(Part.Circle(Vector(36.271792, 7.75, 0), Vector(0, 0, 1), 1.5), False)
sketch17.addGeometry(Part.Circle(Vector(22.848398, 15.5, 0), Vector(0, 0, 1), 1.5), False)
sketch17.addGeometry(Part.Circle(Vector(9.425004, 7.75, 0), Vector(0, 0, 1), 1.5), False)
sketch17.addGeometry(Part.Circle(Vector(9.425004, -7.75, 0), Vector(0, 0, 1), 1.5), False)
sketch17.addGeometry(Part.Circle(Vector(36.271792, -7.75, 0), Vector(0, 0, 1), 1.5), False)
sketch17.addConstraint(Sketcher.Constraint("Equal", 0, 1))
sketch17.addConstraint(Sketcher.Constraint("Equal", 1, 2))
sketch17.addConstraint(Sketcher.Constraint("Equal", 2, 3))
sketch17.addConstraint(Sketcher.Constraint("Equal", 3, 4))
sketch17.addConstraint(Sketcher.Constraint("Equal", 4, 5))
sketch17.addConstraint(Sketcher.Constraint("Symmetric", 0, 3, 2, 3, -1))
sketch17.addConstraint(Sketcher.Constraint("Symmetric", 3, 3, 4, 3, -1))
sketch17.addConstraint(Sketcher.Constraint("Symmetric", 1, 3, 5, 3, -1))
sketch17.addConstraint(Sketcher.Constraint("Horizontal", 1, 3, 3, 3))
sketch17.addConstraint(Sketcher.Constraint("Diameter", 0, Q("3 mm")))
sketch17.addConstraint(Sketcher.Constraint("DistanceY", 0, 3, 2, 3, Q("31 mm")))
sketch17.addConstraint(Sketcher.Constraint("DistanceY", 4, 3, 3, 3, Q("15.5 mm")))
sketch17.addConstraint(Sketcher.Constraint("DistanceX", -1, 1, 1, 3, Q("36.271792 mm")))
sketch17.addConstraint(Sketcher.Constraint("DistanceX", -1, 1, 0, 3, Q("22.848398 mm")))
sketch17.addConstraint(Sketcher.Constraint("DistanceX", -1, 1, 3, 3, Q("9.425004 mm")))
doc.recompute()
hole = body.newObject("PartDesign::Hole", "Hole")
hole.Profile = sketch17
hole.ThreadType = "None"
hole.Diameter = 3
hole.DepthType = "Dimension"
hole.Depth = 10
hole.DrillPoint = "Angled"
hole.DrillPointAngle = 118
hole.Reversed = True

doc.recompute()
